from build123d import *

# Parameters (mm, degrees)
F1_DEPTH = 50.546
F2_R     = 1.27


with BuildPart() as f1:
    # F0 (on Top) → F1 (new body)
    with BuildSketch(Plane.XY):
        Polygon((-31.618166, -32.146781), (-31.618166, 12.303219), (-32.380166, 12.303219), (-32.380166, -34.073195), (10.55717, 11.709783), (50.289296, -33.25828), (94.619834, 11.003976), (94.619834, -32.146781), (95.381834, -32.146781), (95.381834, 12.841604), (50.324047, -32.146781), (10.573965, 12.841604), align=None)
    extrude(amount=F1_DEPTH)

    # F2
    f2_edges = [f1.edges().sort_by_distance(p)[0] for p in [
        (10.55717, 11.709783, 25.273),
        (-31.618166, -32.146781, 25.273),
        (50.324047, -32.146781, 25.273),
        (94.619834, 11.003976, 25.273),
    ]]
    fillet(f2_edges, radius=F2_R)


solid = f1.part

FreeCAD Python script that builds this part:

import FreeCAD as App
import Part
import Sketcher
Q = App.Units.Quantity


def edges_at(feature, points):
    """Names of the edges that pass closest to the given points."""
    edges = feature.Shape.Edges
    near = lambda p: min(range(len(edges)), key=lambda i: edges[i].distToShape(Part.Vertex(*p))[0])
    return sorted({f"Edge{near(p) + 1}" for p in points})


def add_polygon(sketch, points):
    """Adds a closed chain of lines whose ends are joined by coincident constraints."""
    first, n = sketch.GeometryCount, len(points)
    for a, b in zip(points, points[1:] + points[:1]):
        sketch.addGeometry(Part.LineSegment(App.Vector(*a, 0), App.Vector(*b, 0)), False)
    for i in range(n):
        sketch.addConstraint(Sketcher.Constraint("Coincident", first + i, 2, first + (i + 1) % n, 1))

doc = App.newDocument("Part")
params = doc.addObject("Spreadsheet::Sheet", "Params")
for row, (alias, value) in enumerate([
    ("sketch1_width", "0.03 in"),
    ("sketch1_height", "1.75 in"),
    ("pad1_length", "1.99 in"),
    ("fillet_radius", "0.05 in"),
], start=1):
    params.set(f"A{row}", alias)
    params.set(f"B{row}", "=" + value)
    params.setAlias(f"B{row}", alias)

body = doc.addObject("PartDesign::Body", "Body")

sketch1 = body.newObject("Sketcher::SketchObject", "Sketch")
sketch1.AttachmentSupport = (doc.getObject("XY_Plane"), [""])
sketch1.MapMode = "FlatFace"
add_polygon(sketch1, [(-31.6, -32.1), (-31.6, 12.3), (-32.4, 12.3), (-32.4, -34.1), (10.6, 11.7), (50.3, -33.3), (94.6, 11), (94.6, -32.1), (95.4, -32.1), (95.4, 12.8), (50.3, -32.1), (10.6, 12.8)])
sketch1.addConstraint(Sketcher.Constraint("Vertical", 0))
sketch1.addConstraint(Sketcher.Constraint("Horizontal", 1))
sketch1.addConstraint(Sketcher.Constraint("Vertical", 2))
sketch1.addConstraint(Sketcher.Constraint("Vertical", 6))
sketch1.addConstraint(Sketcher.Constraint("Horizontal", 7))
sketch1.addConstraint(Sketcher.Constraint("Vertical", 8))
sketch1.addConstraint(Sketcher.Constraint("Parallel", 5, 9))
sketch1.addConstraint(Sketcher.Constraint("Parallel", 4, 10))
sketch1.addConstraint(Sketcher.Constraint("Parallel", 3, 11))
sketch1.addConstraint(Sketcher.Constraint("Horizontal", 7, 2, 9, 2))
sketch1.addConstraint(Sketcher.Constraint("Horizontal", 8, 2, 10, 2))
sketch1.addConstraint(Sketcher.Constraint("Horizontal", 9, 2, 11, 2))
sketch1.addConstraint(Sketcher.Constraint("Equal", 1, 7))
sketch1.addConstraint(Sketcher.Constraint("DistanceX", 1, 2, 5, 2, Q("5 in")))
sketch1.addConstraint(Sketcher.Constraint("DistanceX", 1, 2, 1, 1, Q("0.03 in")))
sketch1.addConstraint(Sketcher.Constraint("DistanceY", 0, 1, 0, 2, Q("1.75 in")))
sketch1.addConstraint(Sketcher.Constraint("DistanceY", 4, 2, 0, 2, 45.561499))
sketch1.addConstraint(Sketcher.Constraint("DistanceY", 2, 2, 2, 1, 46.376414))
sketch1.addConstraint(Sketcher.Constraint("DistanceY", 6, 2, 6, 1, 43.150757))
sketch1.addConstraint(Sketcher.Constraint("DistanceY", 8, 1, 8, 2, 44.988385))
sketch1.addConstraint(Sketcher.Constraint("DistanceY", -1, 1, 0, 2, 12.303219))
sketch1.addConstraint(Sketcher.Constraint("DistanceX", -1, 1, 3, 2, 10.55717))
sketch1.addConstraint(Sketcher.Constraint("DistanceX", 0, 2, 4, 2, 81.907462))
sketch1.addConstraint(Sketcher.Constraint("DistanceX", 0, 2, 10, 2, 42.192131))
sketch1.setExpression("Constraints[26]", "Params.sketch1_width")
sketch1.setExpression("Constraints[27]", "Params.sketch1_height")
pad1 = body.newObject("PartDesign::Pad", "Pad")
pad1.Profile = sketch1
pad1.setExpression("Length", "Params.pad1_length")
doc.recompute()

fillet = body.newObject("PartDesign::Fillet", "Fillet")
fillet.Base = (pad1, edges_at(pad1, [
    (10.557, 11.71, 25.273),
    (-31.618, -32.147, 25.273),
    (50.324, -32.147, 25.273),
    (94.62, 11.004, 25.273),
]))
fillet.setExpression("Radius", "Params.fillet_radius")

doc.recompute()
